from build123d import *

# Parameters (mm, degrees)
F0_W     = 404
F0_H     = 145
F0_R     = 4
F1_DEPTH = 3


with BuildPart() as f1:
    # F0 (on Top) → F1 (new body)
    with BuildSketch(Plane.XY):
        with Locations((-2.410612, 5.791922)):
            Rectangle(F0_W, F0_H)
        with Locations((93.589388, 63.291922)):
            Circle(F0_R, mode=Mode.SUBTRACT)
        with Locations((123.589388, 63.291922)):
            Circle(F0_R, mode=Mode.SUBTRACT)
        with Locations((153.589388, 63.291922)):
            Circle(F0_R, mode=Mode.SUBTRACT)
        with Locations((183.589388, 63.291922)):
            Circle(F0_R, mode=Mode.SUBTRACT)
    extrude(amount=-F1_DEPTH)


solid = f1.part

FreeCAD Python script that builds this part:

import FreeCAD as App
import Part
import Sketcher

V = App.Vector

doc = App.newDocument("Part")
params = doc.addObject("Spreadsheet::Sheet", "Params")
for row, (alias, value) in enumerate([
    ("sketch1_diameter", "8 mm"),
    ("sketch1_width", "404 mm"),
    ("sketch1_height", "145 mm"),
    ("pad1_length", "3 mm"),
], start=1):
    params.set(f"A{row}", alias)
    params.set(f"B{row}", "=" + value)
    params.setAlias(f"B{row}", alias)

body = doc.addObject("PartDesign::Body", "Body")

# Sketch on XY plane
sketch1 = doc.addObject("Sketcher::SketchObject", "Sketch")
body.addObject(sketch1)
sketch1.AttachmentSupport = (doc.XY_Plane, [""])
sketch1.MapMode = "FlatFace"
sketch1.addGeometry([
    Part.LineSegment(V(-204.4, 78.3, 0), V(-204.4, -66.7, 0)),  # 0
    Part.LineSegment(V(-204.4, -66.7, 0), V(199.6, -66.7, 0)),  # 1
    Part.LineSegment(V(199.6, -66.7, 0), V(199.6, 78.3, 0)),  # 2
    Part.LineSegment(V(199.6, 78.3, 0), V(-204.4, 78.3, 0)),  # 3
    Part.Circle(V(93.6, 63.3, 0), V(0, 0, 1), 4),  # 4
    Part.Circle(V(123.6, 63.3, 0), V(0, 0, 1), 4),  # 5
    Part.Circle(V(153.6, 63.3, 0), V(0, 0, 1), 4),  # 6
    Part.Circle(V(183.6, 63.3, 0), V(0, 0, 1), 4),  # 7
], False)
sketch1.addConstraint([
    Sketcher.Constraint("Coincident", 0, 2, 1, 1),
    Sketcher.Constraint("Coincident", 1, 2, 2, 1),
    Sketcher.Constraint("Coincident", 2, 2, 3, 1),
    Sketcher.Constraint("Coincident", 3, 2, 0, 1),
    Sketcher.Constraint("Vertical", 0),
    Sketcher.Constraint("Horizontal", 1),
    Sketcher.Constraint("Vertical", 2),
    Sketcher.Constraint("Horizontal", 3),
    Sketcher.Constraint("Equal", 4, 5),
    Sketcher.Constraint("Equal", 5, 6),
    Sketcher.Constraint("Equal", 6, 7),
    Sketcher.Constraint("Horizontal", 4, 3, 5, 3),
    Sketcher.Constraint("Horizontal", 5, 3, 6, 3),
    Sketcher.Constraint("Horizontal", 6, 3, 7, 3),
    Sketcher.Constraint("Diameter", 4, 8.0),
    Sketcher.Constraint("DistanceX", 1, 1, 1, 2, 404.0),
    Sketcher.Constraint("DistanceY", 0, 2, 0, 1, 145.0),
    Sketcher.Constraint("DistanceX", 4, 3, 5, 3, 30.0),
    Sketcher.Constraint("DistanceX", 5, 3, 6, 3, 30.0),
    Sketcher.Constraint("DistanceX", 6, 3, 7, 3, 30.0),
    Sketcher.Constraint("DistanceX", 0, 2, 4, 3, 298.0),
    Sketcher.Constraint("DistanceY", 0, 2, 4, 3, 130.0),
    Sketcher.Constraint("DistanceX", -1, 1, 4, 3, 93.589388),
    Sketcher.Constraint("DistanceY", 0, 2, -1, 1, 66.708078),
])
sketch1.setExpression("Constraints[14]", "Params.sketch1_diameter")
sketch1.setExpression("Constraints[15]", "Params.sketch1_width")
sketch1.setExpression("Constraints[16]", "Params.sketch1_height")
pad1 = doc.addObject("PartDesign::Pad", "Pad")
body.addObject(pad1)
pad1.Profile = sketch1
pad1.setExpression("Length", "Params.pad1_length")
pad1.Reversed = True

doc.recompute()
